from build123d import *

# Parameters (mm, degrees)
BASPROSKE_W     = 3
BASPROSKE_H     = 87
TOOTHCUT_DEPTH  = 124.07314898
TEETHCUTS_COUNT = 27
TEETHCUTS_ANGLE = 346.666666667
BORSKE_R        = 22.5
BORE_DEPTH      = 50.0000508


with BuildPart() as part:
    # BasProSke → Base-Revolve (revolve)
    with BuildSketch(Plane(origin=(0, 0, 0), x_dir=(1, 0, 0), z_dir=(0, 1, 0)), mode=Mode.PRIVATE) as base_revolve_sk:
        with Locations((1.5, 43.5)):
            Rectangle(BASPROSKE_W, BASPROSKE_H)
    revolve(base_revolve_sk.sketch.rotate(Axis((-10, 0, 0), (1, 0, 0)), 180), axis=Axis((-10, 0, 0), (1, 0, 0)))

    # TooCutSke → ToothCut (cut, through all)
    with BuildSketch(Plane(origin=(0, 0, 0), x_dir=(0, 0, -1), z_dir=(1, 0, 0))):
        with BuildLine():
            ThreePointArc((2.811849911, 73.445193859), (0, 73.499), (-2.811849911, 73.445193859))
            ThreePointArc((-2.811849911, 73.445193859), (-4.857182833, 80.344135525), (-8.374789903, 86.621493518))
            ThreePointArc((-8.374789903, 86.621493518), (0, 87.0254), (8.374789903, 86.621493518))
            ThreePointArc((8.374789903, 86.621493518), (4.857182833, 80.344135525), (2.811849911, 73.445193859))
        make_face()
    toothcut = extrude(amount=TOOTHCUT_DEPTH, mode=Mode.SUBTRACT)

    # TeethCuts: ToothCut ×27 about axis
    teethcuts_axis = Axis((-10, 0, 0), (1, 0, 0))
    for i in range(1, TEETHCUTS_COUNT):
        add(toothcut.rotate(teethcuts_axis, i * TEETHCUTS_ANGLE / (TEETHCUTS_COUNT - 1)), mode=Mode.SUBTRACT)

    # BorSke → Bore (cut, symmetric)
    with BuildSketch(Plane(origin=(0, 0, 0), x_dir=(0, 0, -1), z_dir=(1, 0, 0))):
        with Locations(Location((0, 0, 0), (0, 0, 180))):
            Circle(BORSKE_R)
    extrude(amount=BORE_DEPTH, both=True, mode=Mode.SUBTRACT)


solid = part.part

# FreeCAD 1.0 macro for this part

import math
import FreeCAD as App
import Part
import Sketcher

V = App.Vector
Q = App.Units.Quantity


def add_polygon(sketch, points):
    """Adds a closed chain of lines whose ends are joined by coincident constraints."""
    first, n = sketch.GeometryCount, len(points)
    for a, b in zip(points, points[1:] + points[:1]):
        sketch.addGeometry(Part.LineSegment(App.Vector(*a, 0), App.Vector(*b, 0)), False)
    for i in range(n):
        sketch.addConstraint(Sketcher.Constraint("Coincident", first + i, 2, first + (i + 1) % n, 1))

doc = App.newDocument("Part")
body = doc.addObject("PartDesign::Body", "Body")

sketch1 = body.newObject("Sketcher::SketchObject", "Sketch")
sketch1.AttachmentSupport = (doc.getObject("XZ_Plane"), [""])
sketch1.MapMode = "FlatFace"
add_polygon(sketch1, [(0, -87), (0, 0), (3, 0), (3, -87)])
sketch1.addConstraint([
    Sketcher.Constraint("Vertical", 0),
    Sketcher.Constraint("Horizontal", 1),
    Sketcher.Constraint("Vertical", 2),
    Sketcher.Constraint("Horizontal", 3),
    Sketcher.Constraint("Coincident", 0, 2, -1, 1),
    Sketcher.Constraint("DistanceX", 1, 1, 1, 2, Q("3 mm")),
    Sketcher.Constraint("DistanceY", 0, 1, 0, 2, Q("87 mm")),
])
revolution = body.newObject("PartDesign::Revolution", "Revolution")
revolution.Profile = sketch1
revolution.ReferenceAxis = (sketch1, ["H_Axis"])
revolution.Angle = 360

sketch2 = body.newObject("Sketcher::SketchObject", "Sketch001")
sketch2.AttachmentSupport = (doc.getObject("YZ_Plane"), [""])
sketch2.MapMode = "FlatFace"
sketch2.addGeometry([
    Part.ArcOfCircle(Part.Circle(V(0, 0, 0), V(0, 0, 1), 73), math.radians(-2.19), math.radians(2.19)),
    Part.ArcOfCircle(Part.Circle(V(68, -35, 0), V(0, 0, 1), 32), math.radians(54), math.radians(80)),
    Part.ArcOfCircle(Part.Circle(V(0, 0, 0), V(0, 0, 1), 87), math.radians(-5.52), math.radians(5.52)),
    Part.ArcOfCircle(Part.Circle(V(68, 35, 0), V(0, 0, 1), 32), math.radians(-80), math.radians(-54)),
], False)
sketch2.addConstraint([
    Sketcher.Constraint("Coincident", 0, 1, 1, 2),
    Sketcher.Constraint("Coincident", 1, 1, 2, 1),
    Sketcher.Constraint("Coincident", 2, 2, 3, 2),
    Sketcher.Constraint("Coincident", 3, 1, 0, 2),
    Sketcher.Constraint("Coincident", 0, 3, -1, 1),
    Sketcher.Constraint("Coincident", 2, 3, -1, 1),
    Sketcher.Constraint("Equal", 1, 3),
    Sketcher.Constraint("Symmetric", 1, 3, 3, 3, -1),
    Sketcher.Constraint("Radius", 1, Q("32.4 mm")),
    Sketcher.Constraint("Radius", 0, Q("73.498999 mm")),
    Sketcher.Constraint("Radius", 2, Q("87.0254 mm")),
    Sketcher.Constraint("DistanceX", 0, 1, 1, 1, Q("13.1763 mm")),
    Sketcher.Constraint("DistanceY", 0, 1, 3, 1, Q("5.6237 mm")),
])
pocket1 = body.newObject("PartDesign::Pocket", "Pocket")
pocket1.Profile = sketch2
pocket1.Type = "ThroughAll"
pocket1.Reversed = True
doc.recompute()

polarpattern = body.newObject("PartDesign::PolarPattern", "PolarPattern")
polarpattern.Originals = [pocket1]
polarpattern.Axis = (doc.getObject("X_Axis"), [""])
polarpattern.Angle = 360
polarpattern.Occurrences = 27
body.Tip = polarpattern

sketch3 = body.newObject("Sketcher::SketchObject", "Sketch002")
sketch3.AttachmentSupport = (doc.getObject("YZ_Plane"), [""])
sketch3.MapMode = "FlatFace"
sketch3.addGeometry(Part.Circle(V(0, 0, 0), V(0, 0, 1), 22), False)
sketch3.addConstraint([
    Sketcher.Constraint("Coincident", 0, 3, -1, 1),
    Sketcher.Constraint("Diameter", 0, Q("45 mm")),
])
pocket2 = body.newObject("PartDesign::Pocket", "Pocket001")
pocket2.Profile = sketch3
pocket2.Length = 100.000102
pocket2.Midplane = True

doc.recompute()
